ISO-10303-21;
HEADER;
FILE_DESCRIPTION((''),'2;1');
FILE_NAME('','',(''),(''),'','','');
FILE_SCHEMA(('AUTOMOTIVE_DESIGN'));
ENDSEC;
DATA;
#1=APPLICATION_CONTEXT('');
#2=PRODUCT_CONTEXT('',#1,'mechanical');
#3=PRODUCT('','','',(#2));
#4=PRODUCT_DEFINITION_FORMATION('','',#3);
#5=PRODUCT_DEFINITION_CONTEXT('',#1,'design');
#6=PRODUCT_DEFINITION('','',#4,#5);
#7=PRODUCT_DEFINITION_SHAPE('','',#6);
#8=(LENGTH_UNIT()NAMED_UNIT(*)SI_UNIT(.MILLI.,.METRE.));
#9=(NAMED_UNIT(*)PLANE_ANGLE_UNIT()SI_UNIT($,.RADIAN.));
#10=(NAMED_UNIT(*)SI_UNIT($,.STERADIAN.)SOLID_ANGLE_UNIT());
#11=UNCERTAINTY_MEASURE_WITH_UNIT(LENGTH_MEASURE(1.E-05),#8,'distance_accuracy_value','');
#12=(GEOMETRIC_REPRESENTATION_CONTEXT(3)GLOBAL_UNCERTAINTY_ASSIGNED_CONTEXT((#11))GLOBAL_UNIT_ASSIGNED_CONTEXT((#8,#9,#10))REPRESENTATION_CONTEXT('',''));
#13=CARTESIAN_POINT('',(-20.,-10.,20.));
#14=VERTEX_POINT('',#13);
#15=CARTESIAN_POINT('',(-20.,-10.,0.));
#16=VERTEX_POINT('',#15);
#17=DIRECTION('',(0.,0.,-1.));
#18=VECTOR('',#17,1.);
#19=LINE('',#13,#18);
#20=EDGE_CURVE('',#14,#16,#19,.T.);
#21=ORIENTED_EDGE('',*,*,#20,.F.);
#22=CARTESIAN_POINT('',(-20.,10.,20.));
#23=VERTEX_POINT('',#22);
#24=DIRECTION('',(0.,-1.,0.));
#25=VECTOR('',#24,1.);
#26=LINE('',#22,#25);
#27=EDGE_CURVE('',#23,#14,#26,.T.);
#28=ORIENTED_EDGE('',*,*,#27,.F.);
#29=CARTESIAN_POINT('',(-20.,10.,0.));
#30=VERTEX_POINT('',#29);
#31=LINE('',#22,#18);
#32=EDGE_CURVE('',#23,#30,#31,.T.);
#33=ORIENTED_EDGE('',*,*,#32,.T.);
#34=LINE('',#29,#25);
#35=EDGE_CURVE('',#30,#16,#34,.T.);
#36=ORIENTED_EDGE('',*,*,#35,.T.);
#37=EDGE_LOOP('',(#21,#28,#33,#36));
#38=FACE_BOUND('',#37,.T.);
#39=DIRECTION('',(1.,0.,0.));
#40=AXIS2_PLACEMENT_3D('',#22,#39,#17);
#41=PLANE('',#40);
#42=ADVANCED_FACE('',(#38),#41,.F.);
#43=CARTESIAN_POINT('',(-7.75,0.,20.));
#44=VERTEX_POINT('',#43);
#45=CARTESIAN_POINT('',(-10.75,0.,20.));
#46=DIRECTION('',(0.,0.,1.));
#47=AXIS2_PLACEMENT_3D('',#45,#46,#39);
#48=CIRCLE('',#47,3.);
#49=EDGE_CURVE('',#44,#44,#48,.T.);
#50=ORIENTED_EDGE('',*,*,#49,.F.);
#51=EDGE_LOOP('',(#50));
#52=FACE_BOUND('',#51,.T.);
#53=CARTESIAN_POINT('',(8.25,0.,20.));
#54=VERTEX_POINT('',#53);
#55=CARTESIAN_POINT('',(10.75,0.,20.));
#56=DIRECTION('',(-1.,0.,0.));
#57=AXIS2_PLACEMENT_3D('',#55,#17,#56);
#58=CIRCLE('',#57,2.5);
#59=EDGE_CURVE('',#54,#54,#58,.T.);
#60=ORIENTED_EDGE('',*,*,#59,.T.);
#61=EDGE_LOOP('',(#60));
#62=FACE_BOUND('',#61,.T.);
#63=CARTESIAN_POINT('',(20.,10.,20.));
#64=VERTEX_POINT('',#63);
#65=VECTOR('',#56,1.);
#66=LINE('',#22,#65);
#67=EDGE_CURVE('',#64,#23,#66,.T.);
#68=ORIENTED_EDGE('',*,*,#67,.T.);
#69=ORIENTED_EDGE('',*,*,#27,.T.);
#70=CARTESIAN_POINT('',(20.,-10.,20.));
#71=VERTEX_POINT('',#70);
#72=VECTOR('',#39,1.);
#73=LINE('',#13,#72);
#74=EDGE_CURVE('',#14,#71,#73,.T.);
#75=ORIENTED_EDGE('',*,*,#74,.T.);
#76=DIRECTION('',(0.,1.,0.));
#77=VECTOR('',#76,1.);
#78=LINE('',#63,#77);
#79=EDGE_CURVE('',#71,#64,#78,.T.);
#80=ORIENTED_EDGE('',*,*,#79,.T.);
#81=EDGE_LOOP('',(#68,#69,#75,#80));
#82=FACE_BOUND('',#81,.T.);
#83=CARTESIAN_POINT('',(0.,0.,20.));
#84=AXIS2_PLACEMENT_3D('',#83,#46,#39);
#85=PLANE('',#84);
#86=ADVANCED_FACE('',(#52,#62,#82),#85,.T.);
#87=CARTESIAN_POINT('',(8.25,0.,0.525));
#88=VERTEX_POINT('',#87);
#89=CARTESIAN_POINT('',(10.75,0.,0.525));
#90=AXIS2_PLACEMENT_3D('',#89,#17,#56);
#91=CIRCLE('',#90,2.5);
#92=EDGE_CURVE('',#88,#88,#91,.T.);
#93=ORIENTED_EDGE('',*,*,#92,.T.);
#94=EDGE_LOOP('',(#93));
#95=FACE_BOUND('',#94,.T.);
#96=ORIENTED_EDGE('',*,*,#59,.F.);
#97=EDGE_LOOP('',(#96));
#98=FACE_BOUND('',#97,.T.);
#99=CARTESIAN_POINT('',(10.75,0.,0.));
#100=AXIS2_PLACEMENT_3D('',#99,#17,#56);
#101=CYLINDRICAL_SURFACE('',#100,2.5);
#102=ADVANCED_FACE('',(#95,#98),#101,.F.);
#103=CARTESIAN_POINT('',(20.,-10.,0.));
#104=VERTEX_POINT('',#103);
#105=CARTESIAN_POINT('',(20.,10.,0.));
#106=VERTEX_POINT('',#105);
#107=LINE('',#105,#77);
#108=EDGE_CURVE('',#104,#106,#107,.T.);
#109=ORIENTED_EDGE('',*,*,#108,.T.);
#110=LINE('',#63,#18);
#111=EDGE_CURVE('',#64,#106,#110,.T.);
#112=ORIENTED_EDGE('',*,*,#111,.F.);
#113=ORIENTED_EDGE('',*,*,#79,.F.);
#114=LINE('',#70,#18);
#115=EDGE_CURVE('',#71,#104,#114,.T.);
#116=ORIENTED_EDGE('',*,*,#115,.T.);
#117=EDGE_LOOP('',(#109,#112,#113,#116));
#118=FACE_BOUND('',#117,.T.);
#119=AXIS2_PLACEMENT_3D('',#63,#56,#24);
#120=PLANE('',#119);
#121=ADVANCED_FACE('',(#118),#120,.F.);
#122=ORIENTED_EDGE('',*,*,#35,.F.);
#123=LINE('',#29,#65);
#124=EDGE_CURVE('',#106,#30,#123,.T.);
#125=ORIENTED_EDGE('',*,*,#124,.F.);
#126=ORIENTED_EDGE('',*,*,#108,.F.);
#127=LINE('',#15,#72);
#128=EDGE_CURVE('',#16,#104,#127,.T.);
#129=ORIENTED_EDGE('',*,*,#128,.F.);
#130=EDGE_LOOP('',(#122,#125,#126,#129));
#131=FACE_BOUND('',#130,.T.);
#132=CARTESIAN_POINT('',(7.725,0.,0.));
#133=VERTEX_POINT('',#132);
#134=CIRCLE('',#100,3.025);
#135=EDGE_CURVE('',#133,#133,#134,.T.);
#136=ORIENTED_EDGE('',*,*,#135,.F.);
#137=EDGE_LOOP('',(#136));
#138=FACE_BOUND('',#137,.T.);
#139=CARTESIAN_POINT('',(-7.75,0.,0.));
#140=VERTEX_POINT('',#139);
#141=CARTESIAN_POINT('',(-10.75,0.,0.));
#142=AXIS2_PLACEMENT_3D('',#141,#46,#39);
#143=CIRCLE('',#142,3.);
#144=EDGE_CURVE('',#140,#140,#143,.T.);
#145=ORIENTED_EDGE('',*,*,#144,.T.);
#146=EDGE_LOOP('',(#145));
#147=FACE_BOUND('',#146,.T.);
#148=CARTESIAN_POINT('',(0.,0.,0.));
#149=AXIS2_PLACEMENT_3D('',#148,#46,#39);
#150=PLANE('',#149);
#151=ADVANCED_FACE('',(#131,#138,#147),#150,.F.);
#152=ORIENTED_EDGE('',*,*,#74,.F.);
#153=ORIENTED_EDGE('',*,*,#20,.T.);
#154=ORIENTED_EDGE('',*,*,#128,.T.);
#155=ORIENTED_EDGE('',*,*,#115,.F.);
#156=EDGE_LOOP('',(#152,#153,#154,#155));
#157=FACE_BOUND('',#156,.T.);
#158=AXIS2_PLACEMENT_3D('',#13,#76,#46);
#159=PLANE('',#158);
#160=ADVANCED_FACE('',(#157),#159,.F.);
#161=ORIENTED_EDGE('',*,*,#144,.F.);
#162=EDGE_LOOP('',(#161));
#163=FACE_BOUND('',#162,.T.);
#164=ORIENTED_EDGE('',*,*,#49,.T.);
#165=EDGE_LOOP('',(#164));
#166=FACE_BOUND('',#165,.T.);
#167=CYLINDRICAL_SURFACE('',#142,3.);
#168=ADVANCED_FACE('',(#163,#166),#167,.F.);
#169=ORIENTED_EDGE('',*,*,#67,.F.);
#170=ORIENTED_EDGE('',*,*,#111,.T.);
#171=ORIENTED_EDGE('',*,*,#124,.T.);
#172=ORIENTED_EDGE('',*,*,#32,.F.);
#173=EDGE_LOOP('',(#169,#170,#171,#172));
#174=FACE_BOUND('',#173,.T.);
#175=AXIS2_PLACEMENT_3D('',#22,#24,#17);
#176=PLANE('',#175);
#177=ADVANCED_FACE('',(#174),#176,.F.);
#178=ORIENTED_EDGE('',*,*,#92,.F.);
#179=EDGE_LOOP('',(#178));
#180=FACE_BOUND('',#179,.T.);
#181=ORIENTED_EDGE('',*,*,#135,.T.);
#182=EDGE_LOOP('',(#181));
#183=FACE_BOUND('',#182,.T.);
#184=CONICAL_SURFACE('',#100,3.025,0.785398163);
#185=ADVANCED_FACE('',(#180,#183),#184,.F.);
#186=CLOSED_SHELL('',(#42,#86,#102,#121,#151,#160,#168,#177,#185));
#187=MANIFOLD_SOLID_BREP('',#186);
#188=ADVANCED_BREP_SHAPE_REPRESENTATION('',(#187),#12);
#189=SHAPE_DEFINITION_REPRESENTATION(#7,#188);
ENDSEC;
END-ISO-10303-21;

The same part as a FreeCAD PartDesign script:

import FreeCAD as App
import Part
import Sketcher

V = App.Vector


def add_polygon(sketch, points):
    """Adds a closed chain of lines whose ends are joined by coincident constraints."""
    first, n = sketch.GeometryCount, len(points)
    for a, b in zip(points, points[1:] + points[:1]):
        sketch.addGeometry(Part.LineSegment(App.Vector(*a, 0), App.Vector(*b, 0)), False)
    for i in range(n):
        sketch.addConstraint(Sketcher.Constraint("Coincident", first + i, 2, first + (i + 1) % n, 1))

doc = App.newDocument("Part")
body = doc.addObject("PartDesign::Body", "Body")

sketch1 = body.newObject("Sketcher::SketchObject", "Sketch")
sketch1.AttachmentSupport = (doc.getObject("XY_Plane"), [""])
sketch1.MapMode = "FlatFace"
add_polygon(sketch1, [(-20, 10), (-20, -10), (20, -10), (20, 10)])
sketch1.addConstraint([
    Sketcher.Constraint("Vertical", 0),
    Sketcher.Constraint("Horizontal", 1),
    Sketcher.Constraint("Vertical", 2),
    Sketcher.Constraint("Horizontal", 3),
    Sketcher.Constraint("Symmetric", 0, 2, 2, 2, -1, 1),
    Sketcher.Constraint("DistanceX", 1, 1, 1, 2, 40.0),
    Sketcher.Constraint("DistanceY", 0, 2, 0, 1, 20.0),
])
pad1 = body.newObject("PartDesign::Pad", "Pad")
pad1.Profile = sketch1
pad1.Length = 20

sketch2 = body.newObject("Sketcher::SketchObject", "Sketch001")
sketch2.AttachmentSupport = (doc.getObject("XY_Plane"), [""])
sketch2.MapMode = "FlatFace"
sketch2.addGeometry(Part.Circle(V(10.8, 0, 0), V(0, 0, 1), 2.5), False)
sketch2.addConstraint([
    Sketcher.Constraint("PointOnObject", 0, 3, -1),
    Sketcher.Constraint("Diameter", 0, 5.0),
    Sketcher.Constraint("DistanceX", -1, 1, 0, 3, 10.75),
])
doc.recompute()
hole = body.newObject("PartDesign::Hole", "Hole")
hole.Profile = sketch2
hole.ThreadType = "None"
hole.Diameter = 5
hole.DepthType = "ThroughAll"
hole.HoleCutType = "Countersink"
hole.HoleCutDiameter = 6.05
hole.HoleCutCountersinkAngle = 90
hole.Reversed = True

sketch3 = body.newObject("Sketcher::SketchObject", "Sketch002")
sketch3.AttachmentSupport = (doc.getObject("XY_Plane"), [""])
sketch3.MapMode = "FlatFace"
sketch3.AttachmentOffset = App.Placement(V(0, 0, 20), App.Rotation())
sketch3.addGeometry(Part.Circle(V(-10.8, 0, 0), V(0, 0, 1), 3), False)
sketch3.addConstraint([
    Sketcher.Constraint("PointOnObject", 0, 3, -1),
    Sketcher.Constraint("Diameter", 0, 6.0),
    Sketcher.Constraint("DistanceX", 0, 3, -1, 1, 10.75),
])
pocket1 = body.newObject("PartDesign::Pocket", "Pocket")
pocket1.Profile = sketch3
pocket1.Type = "ThroughAll"

doc.recompute()
